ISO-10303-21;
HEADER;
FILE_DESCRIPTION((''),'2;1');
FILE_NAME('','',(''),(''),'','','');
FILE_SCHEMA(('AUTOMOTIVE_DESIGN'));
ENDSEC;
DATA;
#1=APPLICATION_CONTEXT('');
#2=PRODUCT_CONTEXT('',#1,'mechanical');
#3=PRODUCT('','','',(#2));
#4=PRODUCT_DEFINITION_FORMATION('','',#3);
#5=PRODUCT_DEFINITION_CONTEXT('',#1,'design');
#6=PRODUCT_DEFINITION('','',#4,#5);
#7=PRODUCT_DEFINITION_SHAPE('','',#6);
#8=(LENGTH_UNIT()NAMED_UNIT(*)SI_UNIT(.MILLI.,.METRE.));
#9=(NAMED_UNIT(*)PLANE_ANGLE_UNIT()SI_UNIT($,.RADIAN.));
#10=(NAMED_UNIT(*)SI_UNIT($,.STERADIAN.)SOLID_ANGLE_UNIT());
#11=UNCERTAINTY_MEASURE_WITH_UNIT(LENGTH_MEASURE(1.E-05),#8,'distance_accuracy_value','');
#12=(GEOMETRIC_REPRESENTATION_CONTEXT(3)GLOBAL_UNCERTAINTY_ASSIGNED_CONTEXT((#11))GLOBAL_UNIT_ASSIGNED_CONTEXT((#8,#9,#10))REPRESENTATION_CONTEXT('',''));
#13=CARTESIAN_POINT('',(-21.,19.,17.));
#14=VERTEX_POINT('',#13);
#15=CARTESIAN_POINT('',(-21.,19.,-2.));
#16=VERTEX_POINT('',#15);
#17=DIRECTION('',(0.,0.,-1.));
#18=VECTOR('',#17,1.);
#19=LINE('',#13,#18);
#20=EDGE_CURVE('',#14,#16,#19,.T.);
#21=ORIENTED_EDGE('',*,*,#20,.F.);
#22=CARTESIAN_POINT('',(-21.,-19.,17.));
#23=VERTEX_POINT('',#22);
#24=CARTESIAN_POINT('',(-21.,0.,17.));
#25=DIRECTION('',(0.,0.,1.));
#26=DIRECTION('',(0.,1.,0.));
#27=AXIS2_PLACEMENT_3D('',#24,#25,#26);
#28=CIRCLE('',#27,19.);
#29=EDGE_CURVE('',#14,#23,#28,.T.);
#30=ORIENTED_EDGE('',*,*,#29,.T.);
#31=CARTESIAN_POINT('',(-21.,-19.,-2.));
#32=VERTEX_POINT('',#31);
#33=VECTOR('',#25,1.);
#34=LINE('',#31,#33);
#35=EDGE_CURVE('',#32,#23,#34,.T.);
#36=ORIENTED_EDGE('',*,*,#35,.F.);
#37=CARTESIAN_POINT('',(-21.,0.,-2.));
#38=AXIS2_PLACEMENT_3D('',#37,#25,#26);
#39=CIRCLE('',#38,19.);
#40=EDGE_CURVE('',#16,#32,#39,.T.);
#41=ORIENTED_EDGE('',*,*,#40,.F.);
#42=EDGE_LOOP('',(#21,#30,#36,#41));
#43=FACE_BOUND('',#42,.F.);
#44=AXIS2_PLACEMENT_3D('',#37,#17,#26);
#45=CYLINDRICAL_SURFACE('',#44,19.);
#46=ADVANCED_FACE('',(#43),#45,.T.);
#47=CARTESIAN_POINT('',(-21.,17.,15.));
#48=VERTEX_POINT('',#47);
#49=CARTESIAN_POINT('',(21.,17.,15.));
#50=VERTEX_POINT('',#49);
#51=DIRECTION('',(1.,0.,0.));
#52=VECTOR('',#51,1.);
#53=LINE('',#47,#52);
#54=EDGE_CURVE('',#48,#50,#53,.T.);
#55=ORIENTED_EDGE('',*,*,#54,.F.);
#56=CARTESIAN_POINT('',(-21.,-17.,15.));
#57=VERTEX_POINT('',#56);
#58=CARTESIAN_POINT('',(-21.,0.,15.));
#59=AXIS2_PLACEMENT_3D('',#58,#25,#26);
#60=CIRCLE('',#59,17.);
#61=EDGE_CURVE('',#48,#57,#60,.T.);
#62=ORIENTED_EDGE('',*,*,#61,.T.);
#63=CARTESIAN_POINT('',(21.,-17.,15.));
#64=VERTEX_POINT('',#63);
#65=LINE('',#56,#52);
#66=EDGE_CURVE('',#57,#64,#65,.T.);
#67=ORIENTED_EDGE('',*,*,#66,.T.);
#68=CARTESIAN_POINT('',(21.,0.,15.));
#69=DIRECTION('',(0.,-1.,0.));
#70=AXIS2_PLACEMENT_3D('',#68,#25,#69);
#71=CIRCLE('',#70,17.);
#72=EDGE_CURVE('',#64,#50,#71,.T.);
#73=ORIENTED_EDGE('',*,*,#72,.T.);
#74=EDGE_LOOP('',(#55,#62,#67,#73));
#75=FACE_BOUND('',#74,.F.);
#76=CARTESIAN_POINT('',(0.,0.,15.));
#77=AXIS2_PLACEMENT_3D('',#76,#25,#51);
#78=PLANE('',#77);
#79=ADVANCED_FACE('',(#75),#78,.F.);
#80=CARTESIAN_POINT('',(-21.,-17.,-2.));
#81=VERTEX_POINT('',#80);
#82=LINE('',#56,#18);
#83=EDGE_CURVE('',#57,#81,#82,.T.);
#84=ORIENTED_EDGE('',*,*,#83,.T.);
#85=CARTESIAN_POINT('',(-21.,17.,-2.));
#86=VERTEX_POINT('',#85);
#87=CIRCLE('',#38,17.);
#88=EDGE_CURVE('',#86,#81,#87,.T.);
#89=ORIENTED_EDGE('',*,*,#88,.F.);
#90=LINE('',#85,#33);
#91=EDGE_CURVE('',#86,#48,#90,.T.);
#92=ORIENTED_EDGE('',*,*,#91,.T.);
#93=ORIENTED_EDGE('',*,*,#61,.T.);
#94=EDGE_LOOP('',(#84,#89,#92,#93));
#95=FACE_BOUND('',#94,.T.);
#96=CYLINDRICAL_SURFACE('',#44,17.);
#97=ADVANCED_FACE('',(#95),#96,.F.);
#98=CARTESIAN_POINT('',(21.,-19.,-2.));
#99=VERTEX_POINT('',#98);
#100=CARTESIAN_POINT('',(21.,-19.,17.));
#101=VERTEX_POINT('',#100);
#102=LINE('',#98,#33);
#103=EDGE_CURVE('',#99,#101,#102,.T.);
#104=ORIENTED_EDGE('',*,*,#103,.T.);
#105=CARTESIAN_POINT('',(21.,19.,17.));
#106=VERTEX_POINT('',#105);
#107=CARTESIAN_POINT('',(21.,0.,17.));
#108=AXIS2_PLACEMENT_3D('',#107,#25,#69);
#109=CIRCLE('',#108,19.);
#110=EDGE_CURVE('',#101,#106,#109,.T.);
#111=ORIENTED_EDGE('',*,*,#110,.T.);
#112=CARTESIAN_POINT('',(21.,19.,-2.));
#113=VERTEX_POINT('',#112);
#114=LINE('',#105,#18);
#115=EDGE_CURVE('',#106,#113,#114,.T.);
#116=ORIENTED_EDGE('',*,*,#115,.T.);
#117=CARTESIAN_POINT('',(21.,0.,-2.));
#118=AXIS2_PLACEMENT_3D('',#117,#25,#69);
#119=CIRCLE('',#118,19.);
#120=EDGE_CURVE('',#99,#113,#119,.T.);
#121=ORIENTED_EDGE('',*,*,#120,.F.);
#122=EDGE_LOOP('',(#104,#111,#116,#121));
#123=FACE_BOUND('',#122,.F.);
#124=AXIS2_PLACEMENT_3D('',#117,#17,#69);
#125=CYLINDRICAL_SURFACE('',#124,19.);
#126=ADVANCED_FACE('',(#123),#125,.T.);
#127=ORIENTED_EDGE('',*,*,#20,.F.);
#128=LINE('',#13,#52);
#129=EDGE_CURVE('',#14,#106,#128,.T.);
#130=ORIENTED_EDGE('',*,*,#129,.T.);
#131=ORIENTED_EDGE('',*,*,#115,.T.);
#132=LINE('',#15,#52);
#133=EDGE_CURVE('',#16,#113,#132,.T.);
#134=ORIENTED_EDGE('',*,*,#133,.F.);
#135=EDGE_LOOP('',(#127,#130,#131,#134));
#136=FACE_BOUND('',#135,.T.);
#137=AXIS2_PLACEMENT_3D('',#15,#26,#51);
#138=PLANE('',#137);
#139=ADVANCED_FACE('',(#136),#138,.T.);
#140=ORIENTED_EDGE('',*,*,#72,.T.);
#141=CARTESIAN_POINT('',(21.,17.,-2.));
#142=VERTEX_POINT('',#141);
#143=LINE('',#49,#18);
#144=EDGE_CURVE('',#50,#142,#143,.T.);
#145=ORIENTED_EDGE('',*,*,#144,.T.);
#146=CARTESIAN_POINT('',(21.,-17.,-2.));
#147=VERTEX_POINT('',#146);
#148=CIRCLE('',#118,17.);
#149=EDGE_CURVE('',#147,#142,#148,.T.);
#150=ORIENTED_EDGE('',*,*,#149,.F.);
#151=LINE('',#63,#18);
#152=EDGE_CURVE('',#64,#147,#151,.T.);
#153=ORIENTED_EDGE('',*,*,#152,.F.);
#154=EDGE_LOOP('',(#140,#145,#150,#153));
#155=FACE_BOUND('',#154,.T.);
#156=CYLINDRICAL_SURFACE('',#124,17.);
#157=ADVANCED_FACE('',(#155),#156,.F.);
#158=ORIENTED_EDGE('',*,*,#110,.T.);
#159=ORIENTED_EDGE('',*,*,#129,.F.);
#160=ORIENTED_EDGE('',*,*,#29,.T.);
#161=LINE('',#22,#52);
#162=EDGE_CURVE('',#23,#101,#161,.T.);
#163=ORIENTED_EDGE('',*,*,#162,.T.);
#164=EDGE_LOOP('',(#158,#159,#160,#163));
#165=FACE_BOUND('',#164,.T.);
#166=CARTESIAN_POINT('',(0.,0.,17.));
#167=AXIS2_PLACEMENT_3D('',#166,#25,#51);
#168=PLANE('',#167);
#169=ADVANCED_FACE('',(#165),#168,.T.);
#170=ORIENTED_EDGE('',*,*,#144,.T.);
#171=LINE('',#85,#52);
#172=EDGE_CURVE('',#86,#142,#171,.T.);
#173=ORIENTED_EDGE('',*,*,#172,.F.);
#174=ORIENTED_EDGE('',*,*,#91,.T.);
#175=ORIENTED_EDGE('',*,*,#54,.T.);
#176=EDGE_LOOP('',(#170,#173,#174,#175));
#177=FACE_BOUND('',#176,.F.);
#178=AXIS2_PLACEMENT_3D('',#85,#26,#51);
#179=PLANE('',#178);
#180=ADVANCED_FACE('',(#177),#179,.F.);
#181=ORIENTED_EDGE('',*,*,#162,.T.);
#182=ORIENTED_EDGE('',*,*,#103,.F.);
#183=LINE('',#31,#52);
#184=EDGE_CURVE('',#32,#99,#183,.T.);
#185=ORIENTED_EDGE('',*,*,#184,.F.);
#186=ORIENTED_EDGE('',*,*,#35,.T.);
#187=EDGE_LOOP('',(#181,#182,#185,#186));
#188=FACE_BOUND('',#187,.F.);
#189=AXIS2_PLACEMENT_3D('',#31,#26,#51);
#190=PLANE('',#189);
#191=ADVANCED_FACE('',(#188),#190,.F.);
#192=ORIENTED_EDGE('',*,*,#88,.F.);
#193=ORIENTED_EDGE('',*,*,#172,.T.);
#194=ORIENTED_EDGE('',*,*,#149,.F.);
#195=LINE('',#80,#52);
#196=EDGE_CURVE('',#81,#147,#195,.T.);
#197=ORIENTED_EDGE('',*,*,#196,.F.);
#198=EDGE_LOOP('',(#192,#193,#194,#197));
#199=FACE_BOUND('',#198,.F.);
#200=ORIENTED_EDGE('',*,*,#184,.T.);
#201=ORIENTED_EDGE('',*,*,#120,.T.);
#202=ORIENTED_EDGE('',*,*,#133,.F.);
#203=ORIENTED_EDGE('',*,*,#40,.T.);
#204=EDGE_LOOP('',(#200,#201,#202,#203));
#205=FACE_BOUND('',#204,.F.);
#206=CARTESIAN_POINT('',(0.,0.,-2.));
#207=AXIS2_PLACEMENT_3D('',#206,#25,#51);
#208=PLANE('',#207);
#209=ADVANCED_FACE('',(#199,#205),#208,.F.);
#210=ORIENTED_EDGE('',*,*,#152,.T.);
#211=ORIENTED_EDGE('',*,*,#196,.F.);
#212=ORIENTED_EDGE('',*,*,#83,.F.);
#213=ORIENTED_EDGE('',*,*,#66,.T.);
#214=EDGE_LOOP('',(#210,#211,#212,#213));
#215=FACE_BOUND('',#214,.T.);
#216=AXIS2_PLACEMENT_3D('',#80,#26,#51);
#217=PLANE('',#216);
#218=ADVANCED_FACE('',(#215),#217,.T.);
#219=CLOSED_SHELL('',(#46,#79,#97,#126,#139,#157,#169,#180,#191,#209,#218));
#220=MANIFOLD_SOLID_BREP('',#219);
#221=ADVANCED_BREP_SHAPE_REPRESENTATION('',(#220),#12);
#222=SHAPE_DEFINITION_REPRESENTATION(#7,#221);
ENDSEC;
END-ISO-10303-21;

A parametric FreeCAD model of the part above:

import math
import FreeCAD as App
import Part
import Sketcher
from FreeCAD import Vector
Q = App.Units.Quantity

doc = App.newDocument("Part")
body = doc.addObject("PartDesign::Body", "Body")

# Sketch on XY plane
sketch1 = body.newObject("Sketcher::SketchObject", "Sketch")
sketch1.AttachmentSupport = (doc.getObject("XY_Plane"), [""])
sketch1.MapMode = "FlatFace"
sketch1.AttachmentOffset = App.Placement(Vector(0, 0, 13), App.Rotation())
sketch1.addGeometry([
    Part.ArcOfCircle(Part.Circle(Vector(-21, 0, 0), Vector(0, 0, 1), 17), math.radians(90), math.radians(270)),
    Part.LineSegment(Vector(-21, -17, 0), Vector(21, -17, 0)),
    Part.ArcOfCircle(Part.Circle(Vector(21, 0, 0), Vector(0, 0, 1), 17), math.radians(-90), math.radians(90)),
    Part.LineSegment(Vector(21, 17, 0), Vector(-21, 17, 0)),
], False)
sketch1.addConstraint([
    Sketcher.Constraint("Tangent", 0, 2, 1, 1),
    Sketcher.Constraint("Tangent", 1, 2, 2, 1),
    Sketcher.Constraint("Tangent", 2, 2, 3, 1),
    Sketcher.Constraint("Tangent", 3, 2, 0, 1),
    Sketcher.Constraint("Horizontal", 1),
    Sketcher.Constraint("Horizontal", 3),
    Sketcher.Constraint("Symmetric", 0, 3, 2, 3, -1, 1),
    Sketcher.Constraint("Radius", 0, Q("17 mm")),
    Sketcher.Constraint("DistanceX", 1, 1, 1, 2, Q("42 mm")),
])
pad1 = body.newObject("PartDesign::Pad", "Pad")
pad1.Profile = sketch1
pad1.Length = 2
body2 = doc.addObject("PartDesign::Body", "Body001")

# Sketch on XY plane
sketch2 = body2.newObject("Sketcher::SketchObject", "Sketch001")
sketch2.AttachmentSupport = (doc.getObject("XY_Plane001"), [""])
sketch2.MapMode = "FlatFace"
sketch2.addGeometry([
    Part.ArcOfCircle(Part.Circle(Vector(-21, 0, 0), Vector(0, 0, 1), 19), math.radians(90), math.radians(270)),  # 0
    Part.LineSegment(Vector(-21, -19, 0), Vector(21, -19, 0)),  # 1
    Part.ArcOfCircle(Part.Circle(Vector(21, 0, 0), Vector(0, 0, 1), 19), math.radians(-90), math.radians(90)),  # 2
    Part.LineSegment(Vector(21, 19, 0), Vector(-21, 19, 0)),  # 3
    Part.ArcOfCircle(Part.Circle(Vector(-21, 0, 0), Vector(0, 0, 1), 17), math.radians(90), math.radians(270)),  # 4
    Part.LineSegment(Vector(-21, 17, 0), Vector(21, 17, 0)),  # 5
    Part.ArcOfCircle(Part.Circle(Vector(21, 0, 0), Vector(0, 0, 1), 17), math.radians(-90), math.radians(90)),  # 6
    Part.LineSegment(Vector(21, -17, 0), Vector(-21, -17, 0)),  # 7
], False)
sketch2.addConstraint([
    Sketcher.Constraint("Tangent", 0, 2, 1, 1),
    Sketcher.Constraint("Tangent", 1, 2, 2, 1),
    Sketcher.Constraint("Tangent", 2, 2, 3, 1),
    Sketcher.Constraint("Tangent", 3, 2, 0, 1),
    Sketcher.Constraint("Tangent", 4, 1, 5, 1),
    Sketcher.Constraint("Tangent", 5, 2, 6, 2),
    Sketcher.Constraint("Tangent", 6, 1, 7, 1),
    Sketcher.Constraint("Tangent", 7, 2, 4, 2),
    Sketcher.Constraint("Horizontal", 1),
    Sketcher.Constraint("Horizontal", 3),
    Sketcher.Constraint("Horizontal", 5),
    Sketcher.Constraint("Horizontal", 7),
    Sketcher.Constraint("Coincident", 4, 3, 0, 3),
    Sketcher.Constraint("Symmetric", 0, 3, 2, 3, -1, 1),
    Sketcher.Constraint("Vertical", 6, 3, 1, 2),
    Sketcher.Constraint("Radius", 0, Q("19 mm")),
    Sketcher.Constraint("Radius", 4, Q("17 mm")),
    Sketcher.Constraint("DistanceX", 1, 1, 1, 2, Q("42 mm")),
])
pad2 = body2.newObject("PartDesign::Pad", "Pad001")
pad2.Profile = sketch2
pad2.Length = 15
body3 = doc.addObject("PartDesign::Body", "Body002")
doc.recompute()

body2.Placement = App.Placement(Vector(0, 0, -2), App.Rotation(Vector(0, 0, 1), 0))
boolean = body3.newObject("PartDesign::Boolean", "Boolean")
boolean.Type = "Fuse"
boolean.addObjects([body2])
body4 = doc.addObject("PartDesign::Body", "Body003")

# Sketch on XY plane
sketch3 = body4.newObject("Sketcher::SketchObject", "Sketch002")
sketch3.AttachmentSupport = (doc.getObject("XY_Plane003"), [""])
sketch3.MapMode = "FlatFace"
sketch3.AttachmentOffset = App.Placement(Vector(0, 0, 13), App.Rotation())
sketch3.addGeometry([
    Part.ArcOfCircle(Part.Circle(Vector(-21, 0, 0), Vector(0, 0, 1), 19), math.radians(90), math.radians(270)),
    Part.LineSegment(Vector(-21, -19, 0), Vector(21, -19, 0)),
    Part.ArcOfCircle(Part.Circle(Vector(21, 0, 0), Vector(0, 0, 1), 19), math.radians(-90), math.radians(90)),
    Part.LineSegment(Vector(21, 19, 0), Vector(-21, 19, 0)),
], False)
sketch3.addConstraint([
    Sketcher.Constraint("Tangent", 0, 2, 1, 1),
    Sketcher.Constraint("Tangent", 1, 2, 2, 1),
    Sketcher.Constraint("Tangent", 2, 2, 3, 1),
    Sketcher.Constraint("Tangent", 3, 2, 0, 1),
    Sketcher.Constraint("Horizontal", 1),
    Sketcher.Constraint("Horizontal", 3),
    Sketcher.Constraint("Symmetric", 0, 3, 2, 3, -1, 1),
    Sketcher.Constraint("Radius", 0, Q("19 mm")),
    Sketcher.Constraint("DistanceX", 1, 1, 1, 2, Q("42 mm")),
])
pad3 = body4.newObject("PartDesign::Pad", "Pad002")
pad3.Profile = sketch3
pad3.Length = 4
doc.recompute()

boolean2 = body4.newObject("PartDesign::Boolean", "Boolean001")
boolean2.Type = "Cut"
boolean2.addObjects([body])
doc.recompute()

boolean3 = body4.newObject("PartDesign::Boolean", "Boolean002")
boolean3.Type = "Fuse"
boolean3.addObjects([body3])

doc.recompute()
